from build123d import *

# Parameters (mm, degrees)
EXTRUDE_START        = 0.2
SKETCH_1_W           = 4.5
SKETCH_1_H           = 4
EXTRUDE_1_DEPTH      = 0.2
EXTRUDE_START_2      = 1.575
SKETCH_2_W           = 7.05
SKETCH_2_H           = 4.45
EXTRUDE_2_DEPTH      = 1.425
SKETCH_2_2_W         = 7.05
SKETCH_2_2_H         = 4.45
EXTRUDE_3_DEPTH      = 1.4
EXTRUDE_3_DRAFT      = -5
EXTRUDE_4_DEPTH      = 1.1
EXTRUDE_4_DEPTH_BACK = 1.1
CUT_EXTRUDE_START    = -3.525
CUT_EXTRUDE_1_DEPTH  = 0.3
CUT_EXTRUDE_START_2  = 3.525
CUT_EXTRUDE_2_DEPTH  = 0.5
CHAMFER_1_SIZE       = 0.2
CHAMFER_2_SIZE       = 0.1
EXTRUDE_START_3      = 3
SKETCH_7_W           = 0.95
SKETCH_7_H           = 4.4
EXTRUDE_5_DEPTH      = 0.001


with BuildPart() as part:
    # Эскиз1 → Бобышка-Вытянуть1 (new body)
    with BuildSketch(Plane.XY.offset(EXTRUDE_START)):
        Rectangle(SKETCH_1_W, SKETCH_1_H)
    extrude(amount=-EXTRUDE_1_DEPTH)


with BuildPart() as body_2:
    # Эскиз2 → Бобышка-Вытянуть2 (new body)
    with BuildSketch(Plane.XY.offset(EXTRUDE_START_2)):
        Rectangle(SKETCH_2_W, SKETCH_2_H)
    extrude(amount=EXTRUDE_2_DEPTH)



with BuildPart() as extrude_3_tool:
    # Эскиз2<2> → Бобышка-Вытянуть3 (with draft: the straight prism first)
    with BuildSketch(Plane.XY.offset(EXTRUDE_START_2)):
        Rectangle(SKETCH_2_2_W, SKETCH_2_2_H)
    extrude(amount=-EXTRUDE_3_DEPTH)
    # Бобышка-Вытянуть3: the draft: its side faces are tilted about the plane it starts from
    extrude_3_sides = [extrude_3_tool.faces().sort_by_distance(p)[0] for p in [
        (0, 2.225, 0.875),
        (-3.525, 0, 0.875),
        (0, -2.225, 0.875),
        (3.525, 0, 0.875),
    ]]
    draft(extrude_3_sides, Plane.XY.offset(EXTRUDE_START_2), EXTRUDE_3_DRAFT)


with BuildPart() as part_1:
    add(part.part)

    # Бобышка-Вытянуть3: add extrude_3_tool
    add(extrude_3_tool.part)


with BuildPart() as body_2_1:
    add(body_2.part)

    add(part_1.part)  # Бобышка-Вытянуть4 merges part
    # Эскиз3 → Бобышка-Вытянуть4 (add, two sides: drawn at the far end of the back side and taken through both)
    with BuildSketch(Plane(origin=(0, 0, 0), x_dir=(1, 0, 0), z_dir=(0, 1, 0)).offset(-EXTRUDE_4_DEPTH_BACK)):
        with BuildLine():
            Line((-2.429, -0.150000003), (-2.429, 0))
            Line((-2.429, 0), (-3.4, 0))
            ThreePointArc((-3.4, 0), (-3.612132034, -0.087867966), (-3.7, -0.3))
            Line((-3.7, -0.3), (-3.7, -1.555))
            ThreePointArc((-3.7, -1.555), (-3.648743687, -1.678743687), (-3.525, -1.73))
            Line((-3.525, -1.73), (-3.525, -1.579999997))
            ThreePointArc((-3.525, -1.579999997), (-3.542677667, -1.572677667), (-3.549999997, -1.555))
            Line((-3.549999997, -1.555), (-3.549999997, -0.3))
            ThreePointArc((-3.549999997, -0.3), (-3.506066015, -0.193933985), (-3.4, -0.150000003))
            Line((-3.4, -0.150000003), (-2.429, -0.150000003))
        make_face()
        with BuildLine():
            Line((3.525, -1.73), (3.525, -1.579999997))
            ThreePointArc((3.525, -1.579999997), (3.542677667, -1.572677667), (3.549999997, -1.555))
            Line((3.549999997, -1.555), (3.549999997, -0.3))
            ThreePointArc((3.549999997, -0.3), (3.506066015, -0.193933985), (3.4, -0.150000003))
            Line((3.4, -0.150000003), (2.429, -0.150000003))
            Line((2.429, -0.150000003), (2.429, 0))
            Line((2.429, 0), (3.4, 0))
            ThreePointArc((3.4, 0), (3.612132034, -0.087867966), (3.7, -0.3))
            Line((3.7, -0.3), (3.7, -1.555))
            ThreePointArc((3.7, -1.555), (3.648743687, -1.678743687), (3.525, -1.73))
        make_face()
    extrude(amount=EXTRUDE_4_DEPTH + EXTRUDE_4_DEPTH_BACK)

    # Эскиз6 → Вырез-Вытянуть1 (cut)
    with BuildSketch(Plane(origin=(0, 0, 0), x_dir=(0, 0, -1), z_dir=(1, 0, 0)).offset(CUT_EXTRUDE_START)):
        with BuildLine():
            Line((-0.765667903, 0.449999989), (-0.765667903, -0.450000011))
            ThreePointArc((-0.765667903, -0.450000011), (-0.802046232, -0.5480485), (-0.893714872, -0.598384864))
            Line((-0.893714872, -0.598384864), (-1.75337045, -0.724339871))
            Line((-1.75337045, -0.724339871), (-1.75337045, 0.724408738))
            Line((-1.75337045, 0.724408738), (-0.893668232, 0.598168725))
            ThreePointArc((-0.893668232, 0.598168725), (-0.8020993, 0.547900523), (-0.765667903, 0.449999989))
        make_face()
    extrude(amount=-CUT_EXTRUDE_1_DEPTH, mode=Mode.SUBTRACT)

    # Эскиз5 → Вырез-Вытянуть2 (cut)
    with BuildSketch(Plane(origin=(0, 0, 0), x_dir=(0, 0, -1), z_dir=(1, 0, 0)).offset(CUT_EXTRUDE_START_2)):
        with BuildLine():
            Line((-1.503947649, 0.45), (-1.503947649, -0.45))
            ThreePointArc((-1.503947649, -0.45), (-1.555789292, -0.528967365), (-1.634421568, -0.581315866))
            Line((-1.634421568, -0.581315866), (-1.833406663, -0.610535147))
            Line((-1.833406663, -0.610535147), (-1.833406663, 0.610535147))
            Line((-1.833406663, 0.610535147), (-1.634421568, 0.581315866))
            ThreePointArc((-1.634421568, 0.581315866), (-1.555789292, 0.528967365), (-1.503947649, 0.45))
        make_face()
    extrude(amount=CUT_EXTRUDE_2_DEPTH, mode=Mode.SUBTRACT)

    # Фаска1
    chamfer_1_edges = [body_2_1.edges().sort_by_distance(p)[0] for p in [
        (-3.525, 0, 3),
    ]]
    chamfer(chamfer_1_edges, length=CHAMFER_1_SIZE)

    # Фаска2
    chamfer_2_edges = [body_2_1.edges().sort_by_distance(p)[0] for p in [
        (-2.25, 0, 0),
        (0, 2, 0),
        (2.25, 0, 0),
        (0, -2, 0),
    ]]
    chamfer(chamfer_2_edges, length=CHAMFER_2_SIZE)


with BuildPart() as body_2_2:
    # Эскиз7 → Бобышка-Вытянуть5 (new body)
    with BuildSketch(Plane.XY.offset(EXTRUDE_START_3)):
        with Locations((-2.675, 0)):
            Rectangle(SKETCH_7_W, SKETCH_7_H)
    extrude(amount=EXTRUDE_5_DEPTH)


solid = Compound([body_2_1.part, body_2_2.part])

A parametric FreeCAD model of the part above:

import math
import FreeCAD as App
import Part
import Sketcher
from FreeCAD import Vector


def edges_at(feature, points):
    """Names of the edges that pass closest to the given points."""
    edges = feature.Shape.Edges
    near = lambda p: min(range(len(edges)), key=lambda i: edges[i].distToShape(Part.Vertex(*p))[0])
    return sorted({f"Edge{near(p) + 1}" for p in points})


def faces_at(feature, points):
    """Names of the faces that lie closest to the given points."""
    faces = feature.Shape.Faces
    near = lambda p: min(range(len(faces)), key=lambda i: faces[i].distToShape(Part.Vertex(*p))[0])
    return sorted({f"Face{near(p) + 1}" for p in points})

doc = App.newDocument("Part")
params = doc.addObject("Spreadsheet::Sheet", "Params")
for row, (alias, value) in enumerate([
    ("sketch1_height", "4 mm"),
    ("sketch1_width", "4.5 mm"),
    ("pad1_length", "0.2 mm"),
    ("sketch2_width", "7.05 mm"),
    ("sketch2_height", "4.45 mm"),
    ("pad2_length", "1.425 mm"),
    ("sketch3_width", "7.05 mm"),
    ("sketch3_height", "4.45 mm"),
    ("pad3_length", "1.4 mm"),
    ("draft_angle", "5 deg"),
    ("sketch4_radius", "0.3 mm"),
    ("sketch4_radius2", "0.15 mm"),
    ("pad4_length", "1.1 mm"),
    ("pad4_length2", "1.1 mm"),
    ("sketch5_width", "0.9 mm"),
    ("pocket1_length", "0.3 mm"),
    ("sketch6_width", "0.9 mm"),
    ("pocket2_length", "0.5 mm"),
    ("chamfer_size", "0.2 mm"),
    ("chamfer2_size", "0.1 mm"),
    ("sketch7_height", "4.4 mm"),
    ("sketch7_width", "0.95 mm"),
    ("pad5_length", "0.001 mm"),
], start=1):
    params.set(f"A{row}", alias)
    params.set(f"B{row}", "=" + value)
    params.setAlias(f"B{row}", alias)

body = doc.addObject("PartDesign::Body", "Body")

sketch1 = doc.addObject("Sketcher::SketchObject", "Sketch")
body.addObject(sketch1)
sketch1.AttachmentSupport = (doc.XY_Plane, [""])
sketch1.MapMode = "FlatFace"
sketch1.AttachmentOffset = App.Placement(Vector(0, 0, 0.2), App.Rotation())
sketch1.addGeometry(Part.LineSegment(Vector(-2.2, 2, 0), Vector(-2.2, -2, 0)), False)
sketch1.addGeometry(Part.LineSegment(Vector(-2.2, -2, 0), Vector(2.2, -2, 0)), False)
sketch1.addGeometry(Part.LineSegment(Vector(2.2, -2, 0), Vector(2.2, 2, 0)), False)
sketch1.addGeometry(Part.LineSegment(Vector(2.2, 2, 0), Vector(-2.2, 2, 0)), False)
sketch1.addConstraint(Sketcher.Constraint("Coincident", 0, 2, 1, 1))
sketch1.addConstraint(Sketcher.Constraint("Coincident", 1, 2, 2, 1))
sketch1.addConstraint(Sketcher.Constraint("Coincident", 2, 2, 3, 1))
sketch1.addConstraint(Sketcher.Constraint("Coincident", 3, 2, 0, 1))
sketch1.addConstraint(Sketcher.Constraint("Vertical", 0))
sketch1.addConstraint(Sketcher.Constraint("Horizontal", 1))
sketch1.addConstraint(Sketcher.Constraint("Vertical", 2))
sketch1.addConstraint(Sketcher.Constraint("Horizontal", 3))
sketch1.addConstraint(Sketcher.Constraint("Symmetric", 0, 2, 2, 2, -1, 1))
sketch1.addConstraint(Sketcher.Constraint("DistanceY", 0, 2, 0, 1, 4.0))
sketch1.addConstraint(Sketcher.Constraint("DistanceX", 1, 1, 1, 2, 4.5))
sketch1.setExpression("Constraints[9]", "Params.sketch1_height")
sketch1.setExpression("Constraints[10]", "Params.sketch1_width")
pad1 = doc.addObject("PartDesign::Pad", "Pad")
body.addObject(pad1)
pad1.Profile = sketch1
pad1.setExpression("Length", "Params.pad1_length")
pad1.Reversed = True
body2 = doc.addObject("PartDesign::Body", "Body001")

sketch2 = doc.addObject("Sketcher::SketchObject", "Sketch001")
body2.addObject(sketch2)
sketch2.AttachmentSupport = (doc.getObject("XY_Plane001"), [""])
sketch2.MapMode = "FlatFace"
sketch2.AttachmentOffset = App.Placement(Vector(0, 0, 1.575), App.Rotation())
sketch2.addGeometry(Part.LineSegment(Vector(-3.5, 2.2, 0), Vector(-3.5, -2.2, 0)), False)
sketch2.addGeometry(Part.LineSegment(Vector(-3.5, -2.2, 0), Vector(3.5, -2.2, 0)), False)
sketch2.addGeometry(Part.LineSegment(Vector(3.5, -2.2, 0), Vector(3.5, 2.2, 0)), False)
sketch2.addGeometry(Part.LineSegment(Vector(3.5, 2.2, 0), Vector(-3.5, 2.2, 0)), False)
sketch2.addConstraint(Sketcher.Constraint("Coincident", 0, 2, 1, 1))
sketch2.addConstraint(Sketcher.Constraint("Coincident", 1, 2, 2, 1))
sketch2.addConstraint(Sketcher.Constraint("Coincident", 2, 2, 3, 1))
sketch2.addConstraint(Sketcher.Constraint("Coincident", 3, 2, 0, 1))
sketch2.addConstraint(Sketcher.Constraint("Vertical", 0))
sketch2.addConstraint(Sketcher.Constraint("Horizontal", 1))
sketch2.addConstraint(Sketcher.Constraint("Vertical", 2))
sketch2.addConstraint(Sketcher.Constraint("Horizontal", 3))
sketch2.addConstraint(Sketcher.Constraint("Symmetric", 0, 2, 2, 2, -1, 1))
sketch2.addConstraint(Sketcher.Constraint("DistanceX", 1, 1, 1, 2, 7.05))
sketch2.addConstraint(Sketcher.Constraint("DistanceY", 0, 2, 0, 1, 4.45))
sketch2.setExpression("Constraints[9]", "Params.sketch2_width")
sketch2.setExpression("Constraints[10]", "Params.sketch2_height")
pad2 = doc.addObject("PartDesign::Pad", "Pad001")
body2.addObject(pad2)
pad2.Profile = sketch2
pad2.setExpression("Length", "Params.pad2_length")
body3 = doc.addObject("PartDesign::Body", "Body002")

sketch3 = doc.addObject("Sketcher::SketchObject", "Sketch002")
body3.addObject(sketch3)
sketch3.AttachmentSupport = (doc.getObject("XY_Plane002"), [""])
sketch3.MapMode = "FlatFace"
sketch3.AttachmentOffset = App.Placement(Vector(0, 0, 1.575), App.Rotation())
sketch3.addGeometry(Part.LineSegment(Vector(-3.5, 2.2, 0), Vector(-3.5, -2.2, 0)), False)
sketch3.addGeometry(Part.LineSegment(Vector(-3.5, -2.2, 0), Vector(3.5, -2.2, 0)), False)
sketch3.addGeometry(Part.LineSegment(Vector(3.5, -2.2, 0), Vector(3.5, 2.2, 0)), False)
sketch3.addGeometry(Part.LineSegment(Vector(3.5, 2.2, 0), Vector(-3.5, 2.2, 0)), False)
sketch3.addConstraint(Sketcher.Constraint("Coincident", 0, 2, 1, 1))
sketch3.addConstraint(Sketcher.Constraint("Coincident", 1, 2, 2, 1))
sketch3.addConstraint(Sketcher.Constraint("Coincident", 2, 2, 3, 1))
sketch3.addConstraint(Sketcher.Constraint("Coincident", 3, 2, 0, 1))
sketch3.addConstraint(Sketcher.Constraint("Vertical", 0))
sketch3.addConstraint(Sketcher.Constraint("Horizontal", 1))
sketch3.addConstraint(Sketcher.Constraint("Vertical", 2))
sketch3.addConstraint(Sketcher.Constraint("Horizontal", 3))
sketch3.addConstraint(Sketcher.Constraint("Symmetric", 0, 2, 2, 2, -1, 1))
sketch3.addConstraint(Sketcher.Constraint("DistanceX", 1, 1, 1, 2, 7.05))
sketch3.addConstraint(Sketcher.Constraint("DistanceY", 0, 2, 0, 1, 4.45))
sketch3.setExpression("Constraints[9]", "Params.sketch3_width")
sketch3.setExpression("Constraints[10]", "Params.sketch3_height")
pad3 = doc.addObject("PartDesign::Pad", "Pad002")
body3.addObject(pad3)
pad3.Profile = sketch3
pad3.setExpression("Length", "Params.pad3_length")
pad3.Reversed = True
doc.recompute()

datumplane = doc.addObject("PartDesign::Plane", "DatumPlane")
body3.addObject(datumplane)
datumplane.AttachmentSupport = (doc.getObject("XY_Plane002"), [""])
datumplane.MapMode = "FlatFace"
datumplane.AttachmentOffset = App.Placement(Vector(0, 0, 1.575), App.Rotation())
draft = doc.addObject("PartDesign::Draft", "Draft")
body3.addObject(draft)
draft.Base = (pad3, faces_at(pad3, [
    (0, 2.225, 0.875),
    (-3.525, 0, 0.875),
    (0, -2.225, 0.875),
    (3.525, 0, 0.875),
]))
draft.NeutralPlane = (datumplane, [""])
draft.setExpression("Angle", "Params.draft_angle")
draft.Reversed = True
doc.recompute()

boolean = doc.addObject("PartDesign::Boolean", "Boolean")
body.addObject(boolean)
boolean.Type = "Fuse"
boolean.addObjects([body3])
doc.recompute()

boolean2 = doc.addObject("PartDesign::Boolean", "Boolean001")
body2.addObject(boolean2)
boolean2.Type = "Fuse"
boolean2.addObjects([body])

sketch4 = doc.addObject("Sketcher::SketchObject", "Sketch003")
body2.addObject(sketch4)
sketch4.AttachmentSupport = (doc.getObject("XZ_Plane001"), [""])
sketch4.MapMode = "FlatFace"
sketch4.addGeometry(Part.LineSegment(Vector(-2.429, 0.15, 0), Vector(-2.429, 0, 0)), False)
sketch4.addGeometry(Part.LineSegment(Vector(-2.429, 0, 0), Vector(-3.4, 0, 0)), False)
sketch4.addGeometry(Part.ArcOfCircle(Part.Circle(Vector(-3.4, 0.3, 0), Vector(0, 0, 1), 0.3), math.radians(-180), math.radians(-90)), False)
sketch4.addGeometry(Part.LineSegment(Vector(-3.7, 0.3, 0), Vector(-3.7, 1.555, 0)), False)
sketch4.addGeometry(Part.ArcOfCircle(Part.Circle(Vector(-3.525, 1.555, 0), Vector(0, 0, 1), 0.175), math.radians(90), math.radians(180)), False)
sketch4.addGeometry(Part.LineSegment(Vector(-3.525, 1.73, 0), Vector(-3.525, 1.58, 0)), False)
sketch4.addGeometry(Part.ArcOfCircle(Part.Circle(Vector(-3.525, 1.555, 0), Vector(0, 0, 1), 0.025), math.radians(90), math.radians(180)), False)
sketch4.addGeometry(Part.LineSegment(Vector(-3.55, 1.555, 0), Vector(-3.55, 0.3, 0)), False)
sketch4.addGeometry(Part.ArcOfCircle(Part.Circle(Vector(-3.4, 0.3, 0), Vector(0, 0, 1), 0.15), math.radians(180), math.radians(270)), False)
sketch4.addGeometry(Part.LineSegment(Vector(-3.4, 0.15, 0), Vector(-2.429, 0.15, 0)), False)
sketch4.addGeometry(Part.LineSegment(Vector(3.525, 1.58, 0), Vector(3.525, 1.73, 0)), False)
sketch4.addGeometry(Part.ArcOfCircle(Part.Circle(Vector(3.525, 1.555, 0), Vector(0, 0, 1), 0.175), math.radians(0), math.radians(90)), False)
sketch4.addGeometry(Part.LineSegment(Vector(3.7, 1.555, 0), Vector(3.7, 0.3, 0)), False)
sketch4.addGeometry(Part.ArcOfCircle(Part.Circle(Vector(3.4, 0.3, 0), Vector(0, 0, 1), 0.3), math.radians(-90), math.radians(0)), False)
sketch4.addGeometry(Part.LineSegment(Vector(3.4, 0, 0), Vector(2.429, 0, 0)), False)
sketch4.addGeometry(Part.LineSegment(Vector(2.429, 0, 0), Vector(2.429, 0.15, 0)), False)
sketch4.addGeometry(Part.LineSegment(Vector(2.429, 0.15, 0), Vector(3.4, 0.15, 0)), False)
sketch4.addGeometry(Part.ArcOfCircle(Part.Circle(Vector(3.4, 0.3, 0), Vector(0, 0, 1), 0.15), math.radians(-90), math.radians(0)), False)
sketch4.addGeometry(Part.LineSegment(Vector(3.55, 0.3, 0), Vector(3.55, 1.555, 0)), False)
sketch4.addGeometry(Part.ArcOfCircle(Part.Circle(Vector(3.525, 1.555, 0), Vector(0, 0, 1), 0.025), math.radians(0), math.radians(90)), False)
sketch4.addConstraint(Sketcher.Constraint("Coincident", 0, 2, 1, 1))
sketch4.addConstraint(Sketcher.Constraint("Tangent", 1, 2, 2, 2))
sketch4.addConstraint(Sketcher.Constraint("Tangent", 2, 1, 3, 1))
sketch4.addConstraint(Sketcher.Constraint("Tangent", 3, 2, 4, 2))
sketch4.addConstraint(Sketcher.Constraint("Coincident", 4, 1, 5, 1))
sketch4.addConstraint(Sketcher.Constraint("Coincident", 5, 2, 6, 1))
sketch4.addConstraint(Sketcher.Constraint("Tangent", 6, 2, 7, 1))
sketch4.addConstraint(Sketcher.Constraint("Tangent", 7, 2, 8, 1))
sketch4.addConstraint(Sketcher.Constraint("Tangent", 8, 2, 9, 1))
sketch4.addConstraint(Sketcher.Constraint("Coincident", 9, 2, 0, 1))
sketch4.addConstraint(Sketcher.Constraint("Coincident", 10, 2, 11, 2))
sketch4.addConstraint(Sketcher.Constraint("Tangent", 11, 1, 12, 1))
sketch4.addConstraint(Sketcher.Constraint("Tangent", 12, 2, 13, 2))
sketch4.addConstraint(Sketcher.Constraint("Tangent", 13, 1, 14, 1))
sketch4.addConstraint(Sketcher.Constraint("Coincident", 14, 2, 15, 1))
sketch4.addConstraint(Sketcher.Constraint("Coincident", 15, 2, 16, 1))
sketch4.addConstraint(Sketcher.Constraint("Tangent", 16, 2, 17, 1))
sketch4.addConstraint(Sketcher.Constraint("Tangent", 17, 2, 18, 1))
sketch4.addConstraint(Sketcher.Constraint("Tangent", 18, 2, 19, 1))
sketch4.addConstraint(Sketcher.Constraint("Coincident", 19, 2, 10, 1))
sketch4.addConstraint(Sketcher.Constraint("Vertical", 0))
sketch4.addConstraint(Sketcher.Constraint("Horizontal", 1))
sketch4.addConstraint(Sketcher.Constraint("Vertical", 3))
sketch4.addConstraint(Sketcher.Constraint("Vertical", 5))
sketch4.addConstraint(Sketcher.Constraint("Vertical", 7))
sketch4.addConstraint(Sketcher.Constraint("Horizontal", 9))
sketch4.addConstraint(Sketcher.Constraint("Vertical", 10))
sketch4.addConstraint(Sketcher.Constraint("Vertical", 12))
sketch4.addConstraint(Sketcher.Constraint("Horizontal", 14))
sketch4.addConstraint(Sketcher.Constraint("Vertical", 15))
sketch4.addConstraint(Sketcher.Constraint("Horizontal", 16))
sketch4.addConstraint(Sketcher.Constraint("Vertical", 18))
sketch4.addConstraint(Sketcher.Constraint("Coincident", 6, 3, 4, 3))
sketch4.addConstraint(Sketcher.Constraint("Coincident", 8, 3, 2, 3))
sketch4.addConstraint(Sketcher.Constraint("Coincident", 17, 3, 13, 3))
sketch4.addConstraint(Sketcher.Constraint("Coincident", 19, 3, 11, 3))
sketch4.addConstraint(Sketcher.Constraint("Equal", 4, 11))
sketch4.addConstraint(Sketcher.Constraint("Equal", 2, 13))
sketch4.addConstraint(Sketcher.Constraint("Equal", 8, 17))
sketch4.addConstraint(Sketcher.Constraint("Symmetric", 1, 2, 13, 1, -1, 1))
sketch4.addConstraint(Sketcher.Constraint("Symmetric", 4, 1, 10, 2, -2))
sketch4.addConstraint(Sketcher.Constraint("Symmetric", 0, 2, 14, 2, -2))
sketch4.addConstraint(Sketcher.Constraint("Vertical", 6, 3, 4, 1))
sketch4.addConstraint(Sketcher.Constraint("Radius", 2, 0.3))
sketch4.addConstraint(Sketcher.Constraint("Radius", 8, 0.15))
sketch4.addConstraint(Sketcher.Constraint("Radius", 4, 0.175))
sketch4.addConstraint(Sketcher.Constraint("DistanceX", 2, 3, -1, 1, 3.4))
sketch4.addConstraint(Sketcher.Constraint("DistanceX", 1, 2, 1, 1, 0.971))
sketch4.addConstraint(Sketcher.Constraint("DistanceY", 3, 1, 3, 2, 1.255))
sketch4.setExpression("Constraints[43]", "Params.sketch4_radius")
sketch4.setExpression("Constraints[44]", "Params.sketch4_radius2")
pad4 = doc.addObject("PartDesign::Pad", "Pad003")
body2.addObject(pad4)
pad4.Profile = sketch4
pad4.Type = "TwoLengths"
pad4.setExpression("Length", "Params.pad4_length")
pad4.setExpression("Length2", "Params.pad4_length2")
pad4.Reversed = True

sketch5 = doc.addObject("Sketcher::SketchObject", "Sketch004")
body2.addObject(sketch5)
sketch5.AttachmentSupport = (doc.getObject("YZ_Plane001"), [""])
sketch5.MapMode = "FlatFace"
sketch5.AttachmentOffset = App.Placement(Vector(0, 0, -3.525), App.Rotation())
sketch5.addGeometry(Part.LineSegment(Vector(-0.45, 0.77, 0), Vector(0.45, 0.77, 0)), False)
sketch5.addGeometry(Part.ArcOfCircle(Part.Circle(Vector(0.45, 0.92, 0), Vector(0, 0, 1), 0.15), math.radians(-90), math.radians(-8)), False)
sketch5.addGeometry(Part.LineSegment(Vector(0.6, 0.89, 0), Vector(0.72, 1.75, 0)), False)
sketch5.addGeometry(Part.LineSegment(Vector(0.72, 1.75, 0), Vector(-0.72, 1.75, 0)), False)
sketch5.addGeometry(Part.LineSegment(Vector(-0.72, 1.75, 0), Vector(-0.6, 0.89, 0)), False)
sketch5.addGeometry(Part.ArcOfCircle(Part.Circle(Vector(-0.45, 0.92, 0), Vector(0, 0, 1), 0.15), math.radians(-172), math.radians(-90)), False)
sketch5.addConstraint(Sketcher.Constraint("Tangent", 0, 2, 1, 1))
sketch5.addConstraint(Sketcher.Constraint("Tangent", 1, 2, 2, 1))
sketch5.addConstraint(Sketcher.Constraint("Coincident", 2, 2, 3, 1))
sketch5.addConstraint(Sketcher.Constraint("Coincident", 3, 2, 4, 1))
sketch5.addConstraint(Sketcher.Constraint("Tangent", 4, 2, 5, 1))
sketch5.addConstraint(Sketcher.Constraint("Coincident", 5, 2, 0, 1))
sketch5.addConstraint(Sketcher.Constraint("Horizontal", 0))
sketch5.addConstraint(Sketcher.Constraint("Horizontal", 3))
sketch5.addConstraint(Sketcher.Constraint("Equal", 1, 5))
sketch5.addConstraint(Sketcher.Constraint("DistanceX", 0, 1, 0, 2, 0.9))
sketch5.addConstraint(Sketcher.Constraint("DistanceX", -1, 1, 1, 3, 0.45))
sketch5.addConstraint(Sketcher.Constraint("Radius", 1, 0.149758))
sketch5.addConstraint(Sketcher.Constraint("DistanceY", 0, 2, 1, 2, 0.128))
sketch5.addConstraint(Sketcher.Constraint("DistanceX", 3, 2, 3, 1, 1.448749))
sketch5.addConstraint(Sketcher.Constraint("Distance", 2, 0.868921))
sketch5.addConstraint(Sketcher.Constraint("DistanceX", 5, 3, -1, 1, 0.450209))
sketch5.addConstraint(Sketcher.Constraint("DistanceY", -1, 1, 1, 2, 0.893668))
sketch5.setExpression("Constraints[9]", "Params.sketch5_width")
pocket1 = doc.addObject("PartDesign::Pocket", "Pocket")
body2.addObject(pocket1)
pocket1.Profile = sketch5
pocket1.setExpression("Length", "Params.pocket1_length")

sketch6 = doc.addObject("Sketcher::SketchObject", "Sketch005")
body2.addObject(sketch6)
sketch6.AttachmentSupport = (doc.getObject("YZ_Plane001"), [""])
sketch6.MapMode = "FlatFace"
sketch6.AttachmentOffset = App.Placement(Vector(0, 0, 3.525), App.Rotation())
sketch6.addGeometry(Part.LineSegment(Vector(-0.45, 1.5, 0), Vector(0.45, 1.5, 0)), False)
sketch6.addGeometry(Part.ArcOfCircle(Part.Circle(Vector(0.36, 1.72, 0), Vector(0, 0, 1), 0.24), math.radians(-68), math.radians(-22)), False)
sketch6.addGeometry(Part.LineSegment(Vector(0.58, 1.63, 0), Vector(0.61, 1.83, 0)), False)
sketch6.addGeometry(Part.LineSegment(Vector(0.61, 1.83, 0), Vector(-0.61, 1.83, 0)), False)
sketch6.addGeometry(Part.LineSegment(Vector(-0.61, 1.83, 0), Vector(-0.58, 1.63, 0)), False)
sketch6.addGeometry(Part.ArcOfCircle(Part.Circle(Vector(-0.36, 1.72, 0), Vector(0, 0, 1), 0.24), math.radians(-158), math.radians(-112)), False)
sketch6.addConstraint(Sketcher.Constraint("Coincident", 0, 2, 1, 1))
sketch6.addConstraint(Sketcher.Constraint("Coincident", 1, 2, 2, 1))
sketch6.addConstraint(Sketcher.Constraint("Coincident", 2, 2, 3, 1))
sketch6.addConstraint(Sketcher.Constraint("Coincident", 3, 2, 4, 1))
sketch6.addConstraint(Sketcher.Constraint("Coincident", 4, 2, 5, 1))
sketch6.addConstraint(Sketcher.Constraint("Coincident", 5, 2, 0, 1))
sketch6.addConstraint(Sketcher.Constraint("Horizontal", 0))
sketch6.addConstraint(Sketcher.Constraint("Horizontal", 3))
sketch6.addConstraint(Sketcher.Constraint("Equal", 1, 5))
sketch6.addConstraint(Sketcher.Constraint("Symmetric", 1, 3, 5, 3, -2))
sketch6.addConstraint(Sketcher.Constraint("Horizontal", 1, 2, 4, 2))
sketch6.addConstraint(Sketcher.Constraint("Equal", 2, 4))
sketch6.addConstraint(Sketcher.Constraint("DistanceX", 0, 1, 0, 2, 0.9))
sketch6.addConstraint(Sketcher.Constraint("Radius", 1, 0.236279))
sketch6.addConstraint(Sketcher.Constraint("DistanceX", 3, 2, 3, 1, 1.22107))
sketch6.addConstraint(Sketcher.Constraint("DistanceY", -1, 1, 1, 3, 1.7234))
sketch6.addConstraint(Sketcher.Constraint("Distance", 2, 0.201119))
sketch6.addConstraint(Sketcher.Constraint("DistanceX", -1, 1, 1, 3, 0.362431))
sketch6.addConstraint(Sketcher.Constraint("DistanceY", -1, 1, 1, 2, 1.634422))
sketch6.setExpression("Constraints[12]", "Params.sketch6_width")
pocket2 = doc.addObject("PartDesign::Pocket", "Pocket001")
body2.addObject(pocket2)
pocket2.Profile = sketch6
pocket2.setExpression("Length", "Params.pocket2_length")
pocket2.Reversed = True
doc.recompute()

chamfer = doc.addObject("PartDesign::Chamfer", "Chamfer")
body2.addObject(chamfer)
chamfer.Base = (pocket2, edges_at(pocket2, [(-3.525, 0, 3)]))
chamfer.setExpression("Size", "Params.chamfer_size")
doc.recompute()

chamfer2 = doc.addObject("PartDesign::Chamfer", "Chamfer001")
body2.addObject(chamfer2)
chamfer2.Base = (chamfer, edges_at(chamfer, [
    (-2.25, 0, 0),
    (0, 2, 0),
    (2.25, 0, 0),
    (0, -2, 0),
]))
chamfer2.setExpression("Size", "Params.chamfer2_size")
body4 = doc.addObject("PartDesign::Body", "Body003")

sketch7 = doc.addObject("Sketcher::SketchObject", "Sketch006")
body4.addObject(sketch7)
sketch7.AttachmentSupport = (doc.getObject("XY_Plane003"), [""])
sketch7.MapMode = "FlatFace"
sketch7.AttachmentOffset = App.Placement(Vector(0, 0, 3), App.Rotation())
sketch7.addGeometry(Part.LineSegment(Vector(-3.1, 2.2, 0), Vector(-3.1, -2.2, 0)), False)
sketch7.addGeometry(Part.LineSegment(Vector(-3.1, -2.2, 0), Vector(-2.2, -2.2, 0)), False)
sketch7.addGeometry(Part.LineSegment(Vector(-2.2, -2.2, 0), Vector(-2.2, 2.2, 0)), False)
sketch7.addGeometry(Part.LineSegment(Vector(-2.2, 2.2, 0), Vector(-3.1, 2.2, 0)), False)
sketch7.addConstraint(Sketcher.Constraint("Coincident", 0, 2, 1, 1))
sketch7.addConstraint(Sketcher.Constraint("Coincident", 1, 2, 2, 1))
sketch7.addConstraint(Sketcher.Constraint("Coincident", 2, 2, 3, 1))
sketch7.addConstraint(Sketcher.Constraint("Coincident", 3, 2, 0, 1))
sketch7.addConstraint(Sketcher.Constraint("Vertical", 0))
sketch7.addConstraint(Sketcher.Constraint("Horizontal", 1))
sketch7.addConstraint(Sketcher.Constraint("Vertical", 2))
sketch7.addConstraint(Sketcher.Constraint("Horizontal", 3))
sketch7.addConstraint(Sketcher.Constraint("DistanceY", 0, 2, 0, 1, 4.4))
sketch7.addConstraint(Sketcher.Constraint("DistanceX", 1, 1, 1, 2, 0.95))
sketch7.addConstraint(Sketcher.Constraint("DistanceY", 0, 2, -1, 1, 2.2))
sketch7.addConstraint(Sketcher.Constraint("DistanceX", 1, 2, -1, 1, 2.2))
sketch7.setExpression("Constraints[8]", "Params.sketch7_height")
sketch7.setExpression("Constraints[9]", "Params.sketch7_width")
pad5 = doc.addObject("PartDesign::Pad", "Pad004")
body4.addObject(pad5)
pad5.Profile = sketch7
pad5.setExpression("Length", "Params.pad5_length")

doc.recompute()
